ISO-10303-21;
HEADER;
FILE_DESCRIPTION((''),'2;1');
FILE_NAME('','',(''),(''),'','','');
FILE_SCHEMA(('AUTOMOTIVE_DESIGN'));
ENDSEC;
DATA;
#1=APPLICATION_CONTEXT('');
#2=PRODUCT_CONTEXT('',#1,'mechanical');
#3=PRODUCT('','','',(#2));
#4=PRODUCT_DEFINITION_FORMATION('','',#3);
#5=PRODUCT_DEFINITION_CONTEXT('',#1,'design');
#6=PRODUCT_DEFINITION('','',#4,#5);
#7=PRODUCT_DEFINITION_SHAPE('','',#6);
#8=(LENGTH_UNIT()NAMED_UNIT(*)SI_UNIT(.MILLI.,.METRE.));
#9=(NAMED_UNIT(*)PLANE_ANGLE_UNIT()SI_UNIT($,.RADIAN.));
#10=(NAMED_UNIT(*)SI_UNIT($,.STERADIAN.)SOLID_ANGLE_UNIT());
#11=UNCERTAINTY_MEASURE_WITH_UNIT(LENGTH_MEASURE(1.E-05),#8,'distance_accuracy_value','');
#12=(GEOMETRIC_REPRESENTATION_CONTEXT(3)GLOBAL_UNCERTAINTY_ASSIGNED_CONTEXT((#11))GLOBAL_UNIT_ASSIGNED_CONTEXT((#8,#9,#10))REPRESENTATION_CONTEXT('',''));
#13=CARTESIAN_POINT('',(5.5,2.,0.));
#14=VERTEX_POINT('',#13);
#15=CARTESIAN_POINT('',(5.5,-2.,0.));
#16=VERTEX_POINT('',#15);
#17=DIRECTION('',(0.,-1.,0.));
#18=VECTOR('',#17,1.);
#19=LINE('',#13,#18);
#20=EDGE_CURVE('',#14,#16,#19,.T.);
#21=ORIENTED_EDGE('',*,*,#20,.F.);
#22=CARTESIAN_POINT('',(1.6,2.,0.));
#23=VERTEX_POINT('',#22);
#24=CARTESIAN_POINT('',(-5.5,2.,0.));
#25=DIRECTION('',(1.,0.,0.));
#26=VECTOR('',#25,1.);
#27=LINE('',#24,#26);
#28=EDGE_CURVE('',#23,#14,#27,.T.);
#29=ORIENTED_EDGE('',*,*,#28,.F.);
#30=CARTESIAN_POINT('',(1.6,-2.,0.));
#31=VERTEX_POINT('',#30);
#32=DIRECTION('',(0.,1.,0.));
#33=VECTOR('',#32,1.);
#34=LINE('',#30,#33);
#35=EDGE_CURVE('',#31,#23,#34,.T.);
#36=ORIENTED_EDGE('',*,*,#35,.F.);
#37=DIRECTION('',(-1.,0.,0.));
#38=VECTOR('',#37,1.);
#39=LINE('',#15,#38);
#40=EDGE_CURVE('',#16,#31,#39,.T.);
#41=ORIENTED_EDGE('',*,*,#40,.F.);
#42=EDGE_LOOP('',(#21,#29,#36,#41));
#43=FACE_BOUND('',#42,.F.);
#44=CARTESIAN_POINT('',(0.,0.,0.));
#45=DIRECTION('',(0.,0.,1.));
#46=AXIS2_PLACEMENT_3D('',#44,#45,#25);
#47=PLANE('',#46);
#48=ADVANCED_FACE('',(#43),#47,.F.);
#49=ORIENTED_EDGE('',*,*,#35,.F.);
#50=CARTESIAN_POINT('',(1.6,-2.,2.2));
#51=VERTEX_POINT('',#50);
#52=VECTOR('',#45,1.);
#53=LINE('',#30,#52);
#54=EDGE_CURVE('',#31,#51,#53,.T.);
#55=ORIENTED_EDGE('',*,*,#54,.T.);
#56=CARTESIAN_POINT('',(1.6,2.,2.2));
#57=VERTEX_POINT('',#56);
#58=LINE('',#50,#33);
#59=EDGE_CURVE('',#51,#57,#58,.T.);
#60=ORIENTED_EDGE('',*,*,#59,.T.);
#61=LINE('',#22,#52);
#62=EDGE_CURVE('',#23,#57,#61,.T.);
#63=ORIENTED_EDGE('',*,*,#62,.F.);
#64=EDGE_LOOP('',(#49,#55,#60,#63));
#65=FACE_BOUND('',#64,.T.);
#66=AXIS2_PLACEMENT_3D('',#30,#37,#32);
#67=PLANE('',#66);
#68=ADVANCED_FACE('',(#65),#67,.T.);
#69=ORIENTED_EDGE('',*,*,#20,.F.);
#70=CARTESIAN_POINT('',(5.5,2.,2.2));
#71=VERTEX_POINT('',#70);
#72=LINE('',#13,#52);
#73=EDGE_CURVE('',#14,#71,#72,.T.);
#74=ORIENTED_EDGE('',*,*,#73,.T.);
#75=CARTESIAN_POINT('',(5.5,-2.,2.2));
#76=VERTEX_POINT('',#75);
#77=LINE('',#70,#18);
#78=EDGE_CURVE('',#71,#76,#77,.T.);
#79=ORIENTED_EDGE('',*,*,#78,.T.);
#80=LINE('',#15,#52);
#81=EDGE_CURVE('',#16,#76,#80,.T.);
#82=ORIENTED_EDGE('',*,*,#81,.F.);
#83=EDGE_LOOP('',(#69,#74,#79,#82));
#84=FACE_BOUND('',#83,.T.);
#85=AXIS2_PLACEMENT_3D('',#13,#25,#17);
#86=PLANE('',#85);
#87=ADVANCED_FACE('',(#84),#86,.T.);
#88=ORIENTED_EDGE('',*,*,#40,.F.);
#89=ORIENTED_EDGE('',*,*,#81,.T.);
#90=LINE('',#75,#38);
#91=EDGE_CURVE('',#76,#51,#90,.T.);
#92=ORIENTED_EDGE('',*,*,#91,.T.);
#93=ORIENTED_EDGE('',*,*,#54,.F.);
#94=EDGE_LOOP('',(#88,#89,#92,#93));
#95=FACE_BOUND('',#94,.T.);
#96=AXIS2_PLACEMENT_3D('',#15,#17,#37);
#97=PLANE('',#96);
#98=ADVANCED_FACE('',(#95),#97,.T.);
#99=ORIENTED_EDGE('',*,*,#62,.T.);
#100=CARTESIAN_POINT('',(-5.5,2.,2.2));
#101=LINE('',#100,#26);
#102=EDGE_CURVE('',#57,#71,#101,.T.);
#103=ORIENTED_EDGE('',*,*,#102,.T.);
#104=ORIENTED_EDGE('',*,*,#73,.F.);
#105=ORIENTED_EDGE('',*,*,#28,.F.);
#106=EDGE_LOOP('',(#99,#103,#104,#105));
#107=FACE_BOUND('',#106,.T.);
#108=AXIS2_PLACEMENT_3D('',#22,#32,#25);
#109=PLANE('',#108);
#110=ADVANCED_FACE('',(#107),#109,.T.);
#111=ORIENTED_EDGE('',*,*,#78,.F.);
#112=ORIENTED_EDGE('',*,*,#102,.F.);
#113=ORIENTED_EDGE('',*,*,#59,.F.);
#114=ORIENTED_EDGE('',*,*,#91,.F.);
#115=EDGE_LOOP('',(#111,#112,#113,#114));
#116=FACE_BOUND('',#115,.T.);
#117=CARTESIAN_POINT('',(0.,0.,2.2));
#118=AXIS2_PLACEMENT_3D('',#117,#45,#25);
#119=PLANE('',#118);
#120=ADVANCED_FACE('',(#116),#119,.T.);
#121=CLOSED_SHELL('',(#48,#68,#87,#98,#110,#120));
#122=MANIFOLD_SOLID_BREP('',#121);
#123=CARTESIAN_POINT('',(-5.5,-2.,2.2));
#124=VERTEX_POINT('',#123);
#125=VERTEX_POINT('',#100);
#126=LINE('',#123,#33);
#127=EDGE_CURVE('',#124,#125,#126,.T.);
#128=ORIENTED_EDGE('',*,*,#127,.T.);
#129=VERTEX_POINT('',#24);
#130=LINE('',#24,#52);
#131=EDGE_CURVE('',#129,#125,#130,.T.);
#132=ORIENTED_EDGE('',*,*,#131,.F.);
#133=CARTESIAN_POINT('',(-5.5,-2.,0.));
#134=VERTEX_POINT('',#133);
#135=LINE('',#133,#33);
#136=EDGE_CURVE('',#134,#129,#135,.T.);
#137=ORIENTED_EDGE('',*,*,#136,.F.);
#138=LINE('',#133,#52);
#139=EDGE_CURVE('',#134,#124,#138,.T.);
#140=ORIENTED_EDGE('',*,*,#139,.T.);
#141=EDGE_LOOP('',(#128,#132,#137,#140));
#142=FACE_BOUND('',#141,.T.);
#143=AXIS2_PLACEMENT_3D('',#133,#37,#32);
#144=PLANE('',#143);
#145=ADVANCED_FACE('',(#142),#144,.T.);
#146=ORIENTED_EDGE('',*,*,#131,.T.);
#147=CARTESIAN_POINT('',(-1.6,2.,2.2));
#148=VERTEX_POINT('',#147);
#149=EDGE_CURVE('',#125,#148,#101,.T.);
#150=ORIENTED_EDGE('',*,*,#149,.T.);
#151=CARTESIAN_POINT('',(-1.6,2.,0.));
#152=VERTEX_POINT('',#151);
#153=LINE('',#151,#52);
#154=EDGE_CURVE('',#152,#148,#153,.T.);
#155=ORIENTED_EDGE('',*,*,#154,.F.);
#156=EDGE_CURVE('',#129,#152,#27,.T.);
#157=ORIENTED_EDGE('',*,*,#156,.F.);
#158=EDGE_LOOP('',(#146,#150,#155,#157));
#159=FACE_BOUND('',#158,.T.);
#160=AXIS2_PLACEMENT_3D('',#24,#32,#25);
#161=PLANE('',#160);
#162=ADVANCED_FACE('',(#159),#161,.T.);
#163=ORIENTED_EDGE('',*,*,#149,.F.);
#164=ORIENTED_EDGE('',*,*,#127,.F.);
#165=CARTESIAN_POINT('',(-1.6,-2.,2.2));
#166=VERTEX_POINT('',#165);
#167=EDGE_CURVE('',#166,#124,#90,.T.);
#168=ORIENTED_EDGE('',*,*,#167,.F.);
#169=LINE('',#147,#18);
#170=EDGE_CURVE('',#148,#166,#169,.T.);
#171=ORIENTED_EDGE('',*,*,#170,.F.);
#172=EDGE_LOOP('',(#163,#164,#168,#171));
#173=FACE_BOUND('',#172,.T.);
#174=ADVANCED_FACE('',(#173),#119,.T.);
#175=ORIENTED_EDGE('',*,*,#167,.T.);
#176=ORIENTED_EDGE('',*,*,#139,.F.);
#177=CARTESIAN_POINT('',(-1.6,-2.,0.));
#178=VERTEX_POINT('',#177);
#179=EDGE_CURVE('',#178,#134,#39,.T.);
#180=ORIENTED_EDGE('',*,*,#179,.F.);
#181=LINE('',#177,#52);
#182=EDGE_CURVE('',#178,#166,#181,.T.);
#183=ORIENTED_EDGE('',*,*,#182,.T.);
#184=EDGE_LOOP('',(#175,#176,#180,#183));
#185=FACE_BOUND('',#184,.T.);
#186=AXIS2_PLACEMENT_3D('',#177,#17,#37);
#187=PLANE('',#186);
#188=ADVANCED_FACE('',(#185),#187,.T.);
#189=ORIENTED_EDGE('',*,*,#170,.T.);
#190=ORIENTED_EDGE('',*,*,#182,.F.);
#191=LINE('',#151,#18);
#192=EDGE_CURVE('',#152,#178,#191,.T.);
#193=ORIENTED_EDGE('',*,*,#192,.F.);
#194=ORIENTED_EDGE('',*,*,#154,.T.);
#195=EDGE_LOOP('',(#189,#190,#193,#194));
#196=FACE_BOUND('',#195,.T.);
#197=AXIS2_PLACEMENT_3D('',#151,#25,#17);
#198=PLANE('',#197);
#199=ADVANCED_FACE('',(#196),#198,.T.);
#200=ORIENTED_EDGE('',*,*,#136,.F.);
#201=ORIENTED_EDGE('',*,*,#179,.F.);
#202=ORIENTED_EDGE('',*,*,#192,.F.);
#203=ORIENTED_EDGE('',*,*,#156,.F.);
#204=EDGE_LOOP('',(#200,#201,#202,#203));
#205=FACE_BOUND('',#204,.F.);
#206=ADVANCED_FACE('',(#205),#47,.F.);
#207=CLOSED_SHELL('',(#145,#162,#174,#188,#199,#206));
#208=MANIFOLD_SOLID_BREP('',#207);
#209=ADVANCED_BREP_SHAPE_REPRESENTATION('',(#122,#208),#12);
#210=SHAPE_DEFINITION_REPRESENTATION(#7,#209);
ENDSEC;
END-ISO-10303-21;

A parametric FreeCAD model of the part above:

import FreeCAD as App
import Part
import Sketcher
from FreeCAD import Vector


def add_polygon(sketch, points):
    """Adds a closed chain of lines whose ends are joined by coincident constraints."""
    first, n = sketch.GeometryCount, len(points)
    for a, b in zip(points, points[1:] + points[:1]):
        sketch.addGeometry(Part.LineSegment(App.Vector(*a, 0), App.Vector(*b, 0)), False)
    for i in range(n):
        sketch.addConstraint(Sketcher.Constraint("Coincident", first + i, 2, first + (i + 1) % n, 1))

doc = App.newDocument("Part")
body = doc.addObject("PartDesign::Body", "Body")
body.AllowCompound = True

sketch1 = body.newObject("Sketcher::SketchObject", "Sketch")
sketch1.AttachmentSupport = (doc.getObject("XY_Plane"), [""])
sketch1.MapMode = "FlatFace"
add_polygon(sketch1, [(-1.6, 2), (-5.5, 2), (-5.5, -2), (-1.6, -2)])
add_polygon(sketch1, [(5.5, 2), (1.6, 2), (1.6, -2), (5.5, -2)])
sketch1.addConstraint([
    Sketcher.Constraint("Horizontal", 0),
    Sketcher.Constraint("Vertical", 1),
    Sketcher.Constraint("Horizontal", 2),
    Sketcher.Constraint("Vertical", 3),
    Sketcher.Constraint("Horizontal", 4),
    Sketcher.Constraint("Vertical", 5),
    Sketcher.Constraint("Horizontal", 6),
    Sketcher.Constraint("Vertical", 7),
    Sketcher.Constraint("Symmetric", 2, 2, 4, 2, -1, 1),
    Sketcher.Constraint("Symmetric", 0, 2, 6, 2, -1, 1),
    Sketcher.Constraint("Horizontal", 3, 2, 4, 2),
    Sketcher.Constraint("DistanceY", 1, 2, 1, 1, 4.0),
    Sketcher.Constraint("DistanceX", 0, 2, 0, 1, 3.9),
    Sketcher.Constraint("DistanceX", 1, 2, 6, 2, 11.0),
])
pad1 = body.newObject("PartDesign::Pad", "Pad")
pad1.Profile = sketch1
pad1.Length = 2.2

doc.recompute()
